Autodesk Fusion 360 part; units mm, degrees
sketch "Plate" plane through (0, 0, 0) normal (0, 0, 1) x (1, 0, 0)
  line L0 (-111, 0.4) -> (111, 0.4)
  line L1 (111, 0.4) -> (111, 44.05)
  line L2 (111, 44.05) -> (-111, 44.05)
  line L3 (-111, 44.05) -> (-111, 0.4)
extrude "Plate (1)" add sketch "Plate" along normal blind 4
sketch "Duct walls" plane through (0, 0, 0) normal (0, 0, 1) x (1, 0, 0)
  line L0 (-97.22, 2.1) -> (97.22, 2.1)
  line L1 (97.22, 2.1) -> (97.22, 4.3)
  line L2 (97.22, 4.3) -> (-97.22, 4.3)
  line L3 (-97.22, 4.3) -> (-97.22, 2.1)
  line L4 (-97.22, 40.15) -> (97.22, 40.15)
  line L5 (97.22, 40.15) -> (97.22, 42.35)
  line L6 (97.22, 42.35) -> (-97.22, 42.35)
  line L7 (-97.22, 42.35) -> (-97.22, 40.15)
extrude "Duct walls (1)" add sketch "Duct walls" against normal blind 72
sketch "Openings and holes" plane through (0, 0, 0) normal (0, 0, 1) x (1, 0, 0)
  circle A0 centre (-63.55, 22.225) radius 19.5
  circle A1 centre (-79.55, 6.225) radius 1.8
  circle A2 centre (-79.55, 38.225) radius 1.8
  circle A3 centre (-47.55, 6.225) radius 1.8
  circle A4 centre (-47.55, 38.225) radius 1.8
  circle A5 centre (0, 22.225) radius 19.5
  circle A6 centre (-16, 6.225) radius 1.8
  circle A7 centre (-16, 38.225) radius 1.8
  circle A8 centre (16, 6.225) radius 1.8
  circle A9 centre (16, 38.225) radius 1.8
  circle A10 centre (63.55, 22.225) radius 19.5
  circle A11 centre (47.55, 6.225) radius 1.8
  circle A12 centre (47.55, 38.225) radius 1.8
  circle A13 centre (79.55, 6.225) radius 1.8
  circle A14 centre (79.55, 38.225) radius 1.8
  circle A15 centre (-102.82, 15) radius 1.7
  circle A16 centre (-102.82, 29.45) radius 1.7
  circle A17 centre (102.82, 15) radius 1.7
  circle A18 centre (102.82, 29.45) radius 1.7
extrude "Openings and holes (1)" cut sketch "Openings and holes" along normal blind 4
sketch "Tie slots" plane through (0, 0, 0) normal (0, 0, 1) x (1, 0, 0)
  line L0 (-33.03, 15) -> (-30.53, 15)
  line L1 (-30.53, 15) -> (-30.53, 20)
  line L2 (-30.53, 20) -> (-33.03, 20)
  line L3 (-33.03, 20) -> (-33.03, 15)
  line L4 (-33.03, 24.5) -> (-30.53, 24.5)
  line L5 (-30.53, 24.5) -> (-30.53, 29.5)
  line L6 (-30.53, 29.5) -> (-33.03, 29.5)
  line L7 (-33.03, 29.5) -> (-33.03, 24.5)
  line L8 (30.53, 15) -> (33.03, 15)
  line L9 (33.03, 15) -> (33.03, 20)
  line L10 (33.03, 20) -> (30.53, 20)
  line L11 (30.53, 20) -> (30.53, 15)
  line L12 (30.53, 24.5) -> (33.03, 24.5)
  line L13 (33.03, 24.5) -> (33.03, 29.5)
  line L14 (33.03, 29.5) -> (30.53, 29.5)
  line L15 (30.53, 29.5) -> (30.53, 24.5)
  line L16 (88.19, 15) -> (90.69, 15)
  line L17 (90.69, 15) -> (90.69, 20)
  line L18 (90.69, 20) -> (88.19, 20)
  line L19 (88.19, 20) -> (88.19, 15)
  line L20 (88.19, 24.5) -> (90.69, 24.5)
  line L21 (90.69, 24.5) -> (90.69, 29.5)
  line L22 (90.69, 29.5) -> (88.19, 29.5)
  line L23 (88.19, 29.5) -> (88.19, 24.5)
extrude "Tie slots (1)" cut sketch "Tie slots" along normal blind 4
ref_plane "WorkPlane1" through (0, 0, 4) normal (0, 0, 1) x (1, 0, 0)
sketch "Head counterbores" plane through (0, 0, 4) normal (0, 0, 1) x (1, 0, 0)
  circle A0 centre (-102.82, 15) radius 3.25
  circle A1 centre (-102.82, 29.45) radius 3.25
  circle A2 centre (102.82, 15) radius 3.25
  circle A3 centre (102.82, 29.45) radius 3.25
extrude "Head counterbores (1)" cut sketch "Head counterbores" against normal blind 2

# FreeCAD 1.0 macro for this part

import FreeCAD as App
import Part
import Sketcher

V = App.Vector

doc = App.newDocument("Part")
params = doc.addObject("Spreadsheet::Sheet", "Params")
for row, (alias, value) in enumerate([
    ("sketch1_width", "222 mm"),
    ("sketch1_height", "43.65 mm"),
    ("pad1_length", "4 mm"),
    ("sketch2_height", "2.2 mm"),
    ("sketch2_width", "194.44 mm"),
    ("pad2_length", "72 mm"),
    ("sketch3_diameter", "39 mm"),
    ("sketch3_diameter2", "3.6 mm"),
    ("sketch3_diameter3", "3.4 mm"),
    ("pocket1_length", "4 mm"),
    ("sketch4_height", "5 mm"),
    ("sketch4_width", "2.5 mm"),
    ("pocket2_length", "4 mm"),
    ("sketch5_diameter", "6.5 mm"),
    ("pocket3_length", "2 mm"),
], start=1):
    params.set(f"A{row}", alias)
    params.set(f"B{row}", "=" + value)
    params.setAlias(f"B{row}", alias)

body = doc.addObject("PartDesign::Body", "Body")

# Sketch on XY plane
sketch1 = body.newObject("Sketcher::SketchObject", "Sketch")
sketch1.AttachmentSupport = (doc.getObject("XY_Plane"), [""])
sketch1.MapMode = "FlatFace"
sketch1.addGeometry([
    Part.LineSegment(V(-111, 44, 0), V(-111, 0, 0)),
    Part.LineSegment(V(-111, 0, 0), V(111, 0, 0)),
    Part.LineSegment(V(111, 0, 0), V(111, 44, 0)),
    Part.LineSegment(V(111, 44, 0), V(-111, 44, 0)),
], False)
sketch1.addConstraint([
    Sketcher.Constraint("Coincident", 0, 2, 1, 1),
    Sketcher.Constraint("Coincident", 1, 2, 2, 1),
    Sketcher.Constraint("Coincident", 2, 2, 3, 1),
    Sketcher.Constraint("Coincident", 3, 2, 0, 1),
    Sketcher.Constraint("Vertical", 0),
    Sketcher.Constraint("Horizontal", 1),
    Sketcher.Constraint("Vertical", 2),
    Sketcher.Constraint("Horizontal", 3),
    Sketcher.Constraint("DistanceX", 1, 1, 1, 2, 222.0),
    Sketcher.Constraint("DistanceX", 0, 2, -1, 1, 111.0),
    Sketcher.Constraint("DistanceY", 0, 2, 0, 1, 43.65),
    Sketcher.Constraint("DistanceY", -1, 1, 0, 2, 0.4),
])
sketch1.setExpression("Constraints[8]", "Params.sketch1_width")
sketch1.setExpression("Constraints[10]", "Params.sketch1_height")
pad1 = body.newObject("PartDesign::Pad", "Pad")
pad1.Profile = sketch1
pad1.setExpression("Length", "Params.pad1_length")

# Sketch on XY plane
sketch2 = body.newObject("Sketcher::SketchObject", "Sketch001")
sketch2.AttachmentSupport = (doc.getObject("XY_Plane"), [""])
sketch2.MapMode = "FlatFace"
sketch2.addGeometry([
    Part.LineSegment(V(-97.2, 4.3, 0), V(-97.2, 2.1, 0)),  # 0
    Part.LineSegment(V(-97.2, 2.1, 0), V(97.2, 2.1, 0)),  # 1
    Part.LineSegment(V(97.2, 2.1, 0), V(97.2, 4.3, 0)),  # 2
    Part.LineSegment(V(97.2, 4.3, 0), V(-97.2, 4.3, 0)),  # 3
    Part.LineSegment(V(-97.2, 42.4, 0), V(-97.2, 40.1, 0)),  # 4
    Part.LineSegment(V(-97.2, 40.1, 0), V(97.2, 40.1, 0)),  # 5
    Part.LineSegment(V(97.2, 40.1, 0), V(97.2, 42.4, 0)),  # 6
    Part.LineSegment(V(97.2, 42.4, 0), V(-97.2, 42.4, 0)),  # 7
], False)
sketch2.addConstraint([
    Sketcher.Constraint("Coincident", 0, 2, 1, 1),
    Sketcher.Constraint("Coincident", 1, 2, 2, 1),
    Sketcher.Constraint("Coincident", 2, 2, 3, 1),
    Sketcher.Constraint("Coincident", 3, 2, 0, 1),
    Sketcher.Constraint("Coincident", 4, 2, 5, 1),
    Sketcher.Constraint("Coincident", 5, 2, 6, 1),
    Sketcher.Constraint("Coincident", 6, 2, 7, 1),
    Sketcher.Constraint("Coincident", 7, 2, 4, 1),
    Sketcher.Constraint("Vertical", 0),
    Sketcher.Constraint("Horizontal", 1),
    Sketcher.Constraint("Vertical", 2),
    Sketcher.Constraint("Horizontal", 3),
    Sketcher.Constraint("Vertical", 4),
    Sketcher.Constraint("Horizontal", 5),
    Sketcher.Constraint("Vertical", 6),
    Sketcher.Constraint("Horizontal", 7),
    Sketcher.Constraint("Vertical", 3, 2, 4, 2),
    Sketcher.Constraint("Vertical", 2, 2, 5, 2),
    Sketcher.Constraint("Equal", 2, 4),
    Sketcher.Constraint("DistanceY", 0, 2, 0, 1, 2.2),
    Sketcher.Constraint("DistanceX", 1, 1, 1, 2, 194.44),
    Sketcher.Constraint("DistanceY", -1, 1, 0, 2, 2.1),
    Sketcher.Constraint("DistanceX", 0, 2, -1, 1, 97.22),
    Sketcher.Constraint("DistanceY", -1, 1, 4, 2, 40.15),
])
sketch2.setExpression("Constraints[19]", "Params.sketch2_height")
sketch2.setExpression("Constraints[20]", "Params.sketch2_width")
pad2 = body.newObject("PartDesign::Pad", "Pad001")
pad2.Profile = sketch2
pad2.setExpression("Length", "Params.pad2_length")
pad2.Reversed = True

# Sketch on XY plane
sketch3 = body.newObject("Sketcher::SketchObject", "Sketch002")
sketch3.AttachmentSupport = (doc.getObject("XY_Plane"), [""])
sketch3.MapMode = "FlatFace"
sketch3.addGeometry([
    Part.Circle(V(-63.5, 22.2, 0), V(0, 0, 1), 19.5),  # 0
    Part.Circle(V(-79.5, 6.2, 0), V(0, 0, 1), 1.8),  # 1
    Part.Circle(V(-79.5, 38.2, 0), V(0, 0, 1), 1.8),  # 2
    Part.Circle(V(-47.5, 6.2, 0), V(0, 0, 1), 1.8),  # 3
    Part.Circle(V(-47.5, 38.2, 0), V(0, 0, 1), 1.8),  # 4
    Part.Circle(V(0, 22.2, 0), V(0, 0, 1), 19.5),  # 5
    Part.Circle(V(-16, 6.2, 0), V(0, 0, 1), 1.8),  # 6
    Part.Circle(V(-16, 38.2, 0), V(0, 0, 1), 1.8),  # 7
    Part.Circle(V(16, 6.2, 0), V(0, 0, 1), 1.8),  # 8
    Part.Circle(V(16, 38.2, 0), V(0, 0, 1), 1.8),  # 9
    Part.Circle(V(63.5, 22.2, 0), V(0, 0, 1), 19.5),  # 10
    Part.Circle(V(47.5, 6.2, 0), V(0, 0, 1), 1.8),  # 11
    Part.Circle(V(47.5, 38.2, 0), V(0, 0, 1), 1.8),  # 12
    Part.Circle(V(79.5, 6.2, 0), V(0, 0, 1), 1.8),  # 13
    Part.Circle(V(79.5, 38.2, 0), V(0, 0, 1), 1.8),  # 14
    Part.Circle(V(-102.8, 15, 0), V(0, 0, 1), 1.7),  # 15
    Part.Circle(V(-102.8, 29.4, 0), V(0, 0, 1), 1.7),  # 16
    Part.Circle(V(102.8, 15, 0), V(0, 0, 1), 1.7),  # 17
    Part.Circle(V(102.8, 29.4, 0), V(0, 0, 1), 1.7),  # 18
], False)
sketch3.addConstraint([
    Sketcher.Constraint("Equal", 1, 2),
    Sketcher.Constraint("Equal", 2, 3),
    Sketcher.Constraint("Equal", 3, 4),
    Sketcher.Constraint("Equal", 0, 5),
    Sketcher.Constraint("Equal", 4, 6),
    Sketcher.Constraint("Equal", 6, 7),
    Sketcher.Constraint("Equal", 7, 8),
    Sketcher.Constraint("Equal", 8, 9),
    Sketcher.Constraint("Equal", 5, 10),
    Sketcher.Constraint("Equal", 9, 11),
    Sketcher.Constraint("Equal", 11, 12),
    Sketcher.Constraint("Equal", 12, 13),
    Sketcher.Constraint("Equal", 13, 14),
    Sketcher.Constraint("Equal", 15, 16),
    Sketcher.Constraint("Equal", 16, 17),
    Sketcher.Constraint("Equal", 17, 18),
    Sketcher.Constraint("Symmetric", 6, 3, 8, 3, -2),
    Sketcher.Constraint("Symmetric", 7, 3, 9, 3, -2),
    Sketcher.Constraint("Symmetric", 0, 3, 10, 3, -2),
    Sketcher.Constraint("Symmetric", 3, 3, 11, 3, -2),
    Sketcher.Constraint("Symmetric", 4, 3, 12, 3, -2),
    Sketcher.Constraint("Symmetric", 1, 3, 13, 3, -2),
    Sketcher.Constraint("Symmetric", 2, 3, 14, 3, -2),
    Sketcher.Constraint("Symmetric", 15, 3, 17, 3, -2),
    Sketcher.Constraint("Symmetric", 16, 3, 18, 3, -2),
    Sketcher.Constraint("PointOnObject", 5, 3, -2),
    Sketcher.Constraint("Horizontal", 1, 3, 3, 3),
    Sketcher.Constraint("Horizontal", 2, 3, 4, 3),
    Sketcher.Constraint("Horizontal", 0, 3, 5, 3),
    Sketcher.Constraint("Horizontal", 3, 3, 6, 3),
    Sketcher.Constraint("Horizontal", 4, 3, 7, 3),
    Sketcher.Constraint("Vertical", 1, 3, 2, 3),
    Sketcher.Constraint("Vertical", 3, 3, 4, 3),
    Sketcher.Constraint("Vertical", 6, 3, 7, 3),
    Sketcher.Constraint("Vertical", 15, 3, 16, 3),
    Sketcher.Constraint("Diameter", 0, 39.0),
    Sketcher.Constraint("Diameter", 1, 3.6),
    Sketcher.Constraint("Diameter", 15, 3.4),
    Sketcher.Constraint("DistanceX", 6, 3, -1, 1, 16.0),
    Sketcher.Constraint("DistanceY", -1, 1, 15, 3, 15.0),
    Sketcher.Constraint("DistanceX", 1, 3, 0, 3, 16.0),
    Sketcher.Constraint("DistanceY", 1, 3, 0, 3, 16.0),
    Sketcher.Constraint("DistanceY", 0, 3, 2, 3, 16.0),
    Sketcher.Constraint("DistanceX", 0, 3, 3, 3, 16.0),
    Sketcher.Constraint("DistanceX", 0, 3, -1, 1, 63.55),
    Sketcher.Constraint("DistanceX", 15, 3, -1, 1, 102.82),
    Sketcher.Constraint("DistanceY", -1, 1, 16, 3, 29.45),
    Sketcher.Constraint("DistanceY", -1, 1, 0, 3, 22.225),
])
sketch3.setExpression("Constraints[35]", "Params.sketch3_diameter")
sketch3.setExpression("Constraints[36]", "Params.sketch3_diameter2")
sketch3.setExpression("Constraints[37]", "Params.sketch3_diameter3")
pocket1 = body.newObject("PartDesign::Pocket", "Pocket")
pocket1.Profile = sketch3
pocket1.setExpression("Length", "Params.pocket1_length")
pocket1.Reversed = True

# Sketch on XY plane
sketch4 = body.newObject("Sketcher::SketchObject", "Sketch003")
sketch4.AttachmentSupport = (doc.getObject("XY_Plane"), [""])
sketch4.MapMode = "FlatFace"
sketch4.addGeometry([
    Part.LineSegment(V(-33, 20, 0), V(-33, 15, 0)),  # 0
    Part.LineSegment(V(-33, 15, 0), V(-30.5, 15, 0)),  # 1
    Part.LineSegment(V(-30.5, 15, 0), V(-30.5, 20, 0)),  # 2
    Part.LineSegment(V(-30.5, 20, 0), V(-33, 20, 0)),  # 3
    Part.LineSegment(V(-33, 29.5, 0), V(-33, 24.5, 0)),  # 4
    Part.LineSegment(V(-33, 24.5, 0), V(-30.5, 24.5, 0)),  # 5
    Part.LineSegment(V(-30.5, 24.5, 0), V(-30.5, 29.5, 0)),  # 6
    Part.LineSegment(V(-30.5, 29.5, 0), V(-33, 29.5, 0)),  # 7
    Part.LineSegment(V(30.5, 20, 0), V(30.5, 15, 0)),  # 8
    Part.LineSegment(V(30.5, 15, 0), V(33, 15, 0)),  # 9
    Part.LineSegment(V(33, 15, 0), V(33, 20, 0)),  # 10
    Part.LineSegment(V(33, 20, 0), V(30.5, 20, 0)),  # 11
    Part.LineSegment(V(30.5, 29.5, 0), V(30.5, 24.5, 0)),  # 12
    Part.LineSegment(V(30.5, 24.5, 0), V(33, 24.5, 0)),  # 13
    Part.LineSegment(V(33, 24.5, 0), V(33, 29.5, 0)),  # 14
    Part.LineSegment(V(33, 29.5, 0), V(30.5, 29.5, 0)),  # 15
    Part.LineSegment(V(88.2, 20, 0), V(88.2, 15, 0)),  # 16
    Part.LineSegment(V(88.2, 15, 0), V(90.7, 15, 0)),  # 17
    Part.LineSegment(V(90.7, 15, 0), V(90.7, 20, 0)),  # 18
    Part.LineSegment(V(90.7, 20, 0), V(88.2, 20, 0)),  # 19
    Part.LineSegment(V(88.2, 29.5, 0), V(88.2, 24.5, 0)),  # 20
    Part.LineSegment(V(88.2, 24.5, 0), V(90.7, 24.5, 0)),  # 21
    Part.LineSegment(V(90.7, 24.5, 0), V(90.7, 29.5, 0)),  # 22
    Part.LineSegment(V(90.7, 29.5, 0), V(88.2, 29.5, 0)),  # 23
], False)
sketch4.addConstraint([
    Sketcher.Constraint("Coincident", 0, 2, 1, 1),
    Sketcher.Constraint("Coincident", 1, 2, 2, 1),
    Sketcher.Constraint("Coincident", 2, 2, 3, 1),
    Sketcher.Constraint("Coincident", 3, 2, 0, 1),
    Sketcher.Constraint("Coincident", 4, 2, 5, 1),
    Sketcher.Constraint("Coincident", 5, 2, 6, 1),
    Sketcher.Constraint("Coincident", 6, 2, 7, 1),
    Sketcher.Constraint("Coincident", 7, 2, 4, 1),
    Sketcher.Constraint("Coincident", 8, 2, 9, 1),
    Sketcher.Constraint("Coincident", 9, 2, 10, 1),
    Sketcher.Constraint("Coincident", 10, 2, 11, 1),
    Sketcher.Constraint("Coincident", 11, 2, 8, 1),
    Sketcher.Constraint("Coincident", 12, 2, 13, 1),
    Sketcher.Constraint("Coincident", 13, 2, 14, 1),
    Sketcher.Constraint("Coincident", 14, 2, 15, 1),
    Sketcher.Constraint("Coincident", 15, 2, 12, 1),
    Sketcher.Constraint("Coincident", 16, 2, 17, 1),
    Sketcher.Constraint("Coincident", 17, 2, 18, 1),
    Sketcher.Constraint("Coincident", 18, 2, 19, 1),
    Sketcher.Constraint("Coincident", 19, 2, 16, 1),
    Sketcher.Constraint("Coincident", 20, 2, 21, 1),
    Sketcher.Constraint("Coincident", 21, 2, 22, 1),
    Sketcher.Constraint("Coincident", 22, 2, 23, 1),
    Sketcher.Constraint("Coincident", 23, 2, 20, 1),
    Sketcher.Constraint("Vertical", 0),
    Sketcher.Constraint("Horizontal", 1),
    Sketcher.Constraint("Vertical", 2),
    Sketcher.Constraint("Horizontal", 3),
    Sketcher.Constraint("Vertical", 4),
    Sketcher.Constraint("Horizontal", 5),
    Sketcher.Constraint("Vertical", 6),
    Sketcher.Constraint("Horizontal", 7),
    Sketcher.Constraint("Vertical", 8),
    Sketcher.Constraint("Horizontal", 9),
    Sketcher.Constraint("Vertical", 10),
    Sketcher.Constraint("Horizontal", 11),
    Sketcher.Constraint("Vertical", 12),
    Sketcher.Constraint("Horizontal", 13),
    Sketcher.Constraint("Vertical", 14),
    Sketcher.Constraint("Horizontal", 15),
    Sketcher.Constraint("Vertical", 16),
    Sketcher.Constraint("Horizontal", 17),
    Sketcher.Constraint("Vertical", 18),
    Sketcher.Constraint("Horizontal", 19),
    Sketcher.Constraint("Vertical", 20),
    Sketcher.Constraint("Horizontal", 21),
    Sketcher.Constraint("Vertical", 22),
    Sketcher.Constraint("Horizontal", 23),
    Sketcher.Constraint("Symmetric", 1, 2, 8, 2, -2),
    Sketcher.Constraint("Symmetric", 3, 2, 10, 2, -2),
    Sketcher.Constraint("Symmetric", 5, 2, 12, 2, -2),
    Sketcher.Constraint("Symmetric", 7, 2, 14, 2, -2),
    Sketcher.Constraint("Horizontal", 9, 2, 16, 2),
    Sketcher.Constraint("Horizontal", 11, 2, 18, 2),
    Sketcher.Constraint("Horizontal", 13, 2, 20, 2),
    Sketcher.Constraint("Horizontal", 15, 2, 22, 2),
    Sketcher.Constraint("Vertical", 3, 2, 4, 2),
    Sketcher.Constraint("Vertical", 2, 2, 5, 2),
    Sketcher.Constraint("Vertical", 19, 2, 20, 2),
    Sketcher.Constraint("Vertical", 18, 2, 21, 2),
    Sketcher.Constraint("Equal", 15, 17),
    Sketcher.Constraint("Equal", 2, 4),
    Sketcher.Constraint("DistanceY", 0, 2, 0, 1, 5.0),
    Sketcher.Constraint("DistanceX", 1, 1, 1, 2, 2.5),
    Sketcher.Constraint("DistanceY", -1, 1, 0, 2, 15.0),
    Sketcher.Constraint("DistanceY", -1, 1, 4, 2, 24.5),
    Sketcher.Constraint("DistanceX", 0, 2, -1, 1, 33.03),
    Sketcher.Constraint("DistanceX", -1, 1, 16, 2, 88.19),
])
sketch4.setExpression("Constraints[62]", "Params.sketch4_height")
sketch4.setExpression("Constraints[63]", "Params.sketch4_width")
pocket2 = body.newObject("PartDesign::Pocket", "Pocket001")
pocket2.Profile = sketch4
pocket2.setExpression("Length", "Params.pocket2_length")
pocket2.Reversed = True

# Sketch on XY plane
sketch5 = body.newObject("Sketcher::SketchObject", "Sketch004")
sketch5.AttachmentSupport = (doc.getObject("XY_Plane"), [""])
sketch5.MapMode = "FlatFace"
sketch5.AttachmentOffset = App.Placement(V(0, 0, 4), App.Rotation())
sketch5.addGeometry([
    Part.Circle(V(-102.8, 15, 0), V(0, 0, 1), 3.2),
    Part.Circle(V(-102.8, 29.4, 0), V(0, 0, 1), 3.2),
    Part.Circle(V(102.8, 15, 0), V(0, 0, 1), 3.2),
    Part.Circle(V(102.8, 29.4, 0), V(0, 0, 1), 3.2),
], False)
sketch5.addConstraint([
    Sketcher.Constraint("Equal", 0, 1),
    Sketcher.Constraint("Equal", 1, 2),
    Sketcher.Constraint("Equal", 2, 3),
    Sketcher.Constraint("Symmetric", 0, 3, 2, 3, -2),
    Sketcher.Constraint("Symmetric", 1, 3, 3, 3, -2),
    Sketcher.Constraint("Vertical", 0, 3, 1, 3),
    Sketcher.Constraint("Diameter", 0, 6.5),
    Sketcher.Constraint("DistanceY", -1, 1, 0, 3, 15.0),
    Sketcher.Constraint("DistanceX", 0, 3, -1, 1, 102.82),
    Sketcher.Constraint("DistanceY", -1, 1, 1, 3, 29.45),
])
sketch5.setExpression("Constraints[6]", "Params.sketch5_diameter")
pocket3 = body.newObject("PartDesign::Pocket", "Pocket002")
pocket3.Profile = sketch5
pocket3.setExpression("Length", "Params.pocket3_length")

doc.recompute()
